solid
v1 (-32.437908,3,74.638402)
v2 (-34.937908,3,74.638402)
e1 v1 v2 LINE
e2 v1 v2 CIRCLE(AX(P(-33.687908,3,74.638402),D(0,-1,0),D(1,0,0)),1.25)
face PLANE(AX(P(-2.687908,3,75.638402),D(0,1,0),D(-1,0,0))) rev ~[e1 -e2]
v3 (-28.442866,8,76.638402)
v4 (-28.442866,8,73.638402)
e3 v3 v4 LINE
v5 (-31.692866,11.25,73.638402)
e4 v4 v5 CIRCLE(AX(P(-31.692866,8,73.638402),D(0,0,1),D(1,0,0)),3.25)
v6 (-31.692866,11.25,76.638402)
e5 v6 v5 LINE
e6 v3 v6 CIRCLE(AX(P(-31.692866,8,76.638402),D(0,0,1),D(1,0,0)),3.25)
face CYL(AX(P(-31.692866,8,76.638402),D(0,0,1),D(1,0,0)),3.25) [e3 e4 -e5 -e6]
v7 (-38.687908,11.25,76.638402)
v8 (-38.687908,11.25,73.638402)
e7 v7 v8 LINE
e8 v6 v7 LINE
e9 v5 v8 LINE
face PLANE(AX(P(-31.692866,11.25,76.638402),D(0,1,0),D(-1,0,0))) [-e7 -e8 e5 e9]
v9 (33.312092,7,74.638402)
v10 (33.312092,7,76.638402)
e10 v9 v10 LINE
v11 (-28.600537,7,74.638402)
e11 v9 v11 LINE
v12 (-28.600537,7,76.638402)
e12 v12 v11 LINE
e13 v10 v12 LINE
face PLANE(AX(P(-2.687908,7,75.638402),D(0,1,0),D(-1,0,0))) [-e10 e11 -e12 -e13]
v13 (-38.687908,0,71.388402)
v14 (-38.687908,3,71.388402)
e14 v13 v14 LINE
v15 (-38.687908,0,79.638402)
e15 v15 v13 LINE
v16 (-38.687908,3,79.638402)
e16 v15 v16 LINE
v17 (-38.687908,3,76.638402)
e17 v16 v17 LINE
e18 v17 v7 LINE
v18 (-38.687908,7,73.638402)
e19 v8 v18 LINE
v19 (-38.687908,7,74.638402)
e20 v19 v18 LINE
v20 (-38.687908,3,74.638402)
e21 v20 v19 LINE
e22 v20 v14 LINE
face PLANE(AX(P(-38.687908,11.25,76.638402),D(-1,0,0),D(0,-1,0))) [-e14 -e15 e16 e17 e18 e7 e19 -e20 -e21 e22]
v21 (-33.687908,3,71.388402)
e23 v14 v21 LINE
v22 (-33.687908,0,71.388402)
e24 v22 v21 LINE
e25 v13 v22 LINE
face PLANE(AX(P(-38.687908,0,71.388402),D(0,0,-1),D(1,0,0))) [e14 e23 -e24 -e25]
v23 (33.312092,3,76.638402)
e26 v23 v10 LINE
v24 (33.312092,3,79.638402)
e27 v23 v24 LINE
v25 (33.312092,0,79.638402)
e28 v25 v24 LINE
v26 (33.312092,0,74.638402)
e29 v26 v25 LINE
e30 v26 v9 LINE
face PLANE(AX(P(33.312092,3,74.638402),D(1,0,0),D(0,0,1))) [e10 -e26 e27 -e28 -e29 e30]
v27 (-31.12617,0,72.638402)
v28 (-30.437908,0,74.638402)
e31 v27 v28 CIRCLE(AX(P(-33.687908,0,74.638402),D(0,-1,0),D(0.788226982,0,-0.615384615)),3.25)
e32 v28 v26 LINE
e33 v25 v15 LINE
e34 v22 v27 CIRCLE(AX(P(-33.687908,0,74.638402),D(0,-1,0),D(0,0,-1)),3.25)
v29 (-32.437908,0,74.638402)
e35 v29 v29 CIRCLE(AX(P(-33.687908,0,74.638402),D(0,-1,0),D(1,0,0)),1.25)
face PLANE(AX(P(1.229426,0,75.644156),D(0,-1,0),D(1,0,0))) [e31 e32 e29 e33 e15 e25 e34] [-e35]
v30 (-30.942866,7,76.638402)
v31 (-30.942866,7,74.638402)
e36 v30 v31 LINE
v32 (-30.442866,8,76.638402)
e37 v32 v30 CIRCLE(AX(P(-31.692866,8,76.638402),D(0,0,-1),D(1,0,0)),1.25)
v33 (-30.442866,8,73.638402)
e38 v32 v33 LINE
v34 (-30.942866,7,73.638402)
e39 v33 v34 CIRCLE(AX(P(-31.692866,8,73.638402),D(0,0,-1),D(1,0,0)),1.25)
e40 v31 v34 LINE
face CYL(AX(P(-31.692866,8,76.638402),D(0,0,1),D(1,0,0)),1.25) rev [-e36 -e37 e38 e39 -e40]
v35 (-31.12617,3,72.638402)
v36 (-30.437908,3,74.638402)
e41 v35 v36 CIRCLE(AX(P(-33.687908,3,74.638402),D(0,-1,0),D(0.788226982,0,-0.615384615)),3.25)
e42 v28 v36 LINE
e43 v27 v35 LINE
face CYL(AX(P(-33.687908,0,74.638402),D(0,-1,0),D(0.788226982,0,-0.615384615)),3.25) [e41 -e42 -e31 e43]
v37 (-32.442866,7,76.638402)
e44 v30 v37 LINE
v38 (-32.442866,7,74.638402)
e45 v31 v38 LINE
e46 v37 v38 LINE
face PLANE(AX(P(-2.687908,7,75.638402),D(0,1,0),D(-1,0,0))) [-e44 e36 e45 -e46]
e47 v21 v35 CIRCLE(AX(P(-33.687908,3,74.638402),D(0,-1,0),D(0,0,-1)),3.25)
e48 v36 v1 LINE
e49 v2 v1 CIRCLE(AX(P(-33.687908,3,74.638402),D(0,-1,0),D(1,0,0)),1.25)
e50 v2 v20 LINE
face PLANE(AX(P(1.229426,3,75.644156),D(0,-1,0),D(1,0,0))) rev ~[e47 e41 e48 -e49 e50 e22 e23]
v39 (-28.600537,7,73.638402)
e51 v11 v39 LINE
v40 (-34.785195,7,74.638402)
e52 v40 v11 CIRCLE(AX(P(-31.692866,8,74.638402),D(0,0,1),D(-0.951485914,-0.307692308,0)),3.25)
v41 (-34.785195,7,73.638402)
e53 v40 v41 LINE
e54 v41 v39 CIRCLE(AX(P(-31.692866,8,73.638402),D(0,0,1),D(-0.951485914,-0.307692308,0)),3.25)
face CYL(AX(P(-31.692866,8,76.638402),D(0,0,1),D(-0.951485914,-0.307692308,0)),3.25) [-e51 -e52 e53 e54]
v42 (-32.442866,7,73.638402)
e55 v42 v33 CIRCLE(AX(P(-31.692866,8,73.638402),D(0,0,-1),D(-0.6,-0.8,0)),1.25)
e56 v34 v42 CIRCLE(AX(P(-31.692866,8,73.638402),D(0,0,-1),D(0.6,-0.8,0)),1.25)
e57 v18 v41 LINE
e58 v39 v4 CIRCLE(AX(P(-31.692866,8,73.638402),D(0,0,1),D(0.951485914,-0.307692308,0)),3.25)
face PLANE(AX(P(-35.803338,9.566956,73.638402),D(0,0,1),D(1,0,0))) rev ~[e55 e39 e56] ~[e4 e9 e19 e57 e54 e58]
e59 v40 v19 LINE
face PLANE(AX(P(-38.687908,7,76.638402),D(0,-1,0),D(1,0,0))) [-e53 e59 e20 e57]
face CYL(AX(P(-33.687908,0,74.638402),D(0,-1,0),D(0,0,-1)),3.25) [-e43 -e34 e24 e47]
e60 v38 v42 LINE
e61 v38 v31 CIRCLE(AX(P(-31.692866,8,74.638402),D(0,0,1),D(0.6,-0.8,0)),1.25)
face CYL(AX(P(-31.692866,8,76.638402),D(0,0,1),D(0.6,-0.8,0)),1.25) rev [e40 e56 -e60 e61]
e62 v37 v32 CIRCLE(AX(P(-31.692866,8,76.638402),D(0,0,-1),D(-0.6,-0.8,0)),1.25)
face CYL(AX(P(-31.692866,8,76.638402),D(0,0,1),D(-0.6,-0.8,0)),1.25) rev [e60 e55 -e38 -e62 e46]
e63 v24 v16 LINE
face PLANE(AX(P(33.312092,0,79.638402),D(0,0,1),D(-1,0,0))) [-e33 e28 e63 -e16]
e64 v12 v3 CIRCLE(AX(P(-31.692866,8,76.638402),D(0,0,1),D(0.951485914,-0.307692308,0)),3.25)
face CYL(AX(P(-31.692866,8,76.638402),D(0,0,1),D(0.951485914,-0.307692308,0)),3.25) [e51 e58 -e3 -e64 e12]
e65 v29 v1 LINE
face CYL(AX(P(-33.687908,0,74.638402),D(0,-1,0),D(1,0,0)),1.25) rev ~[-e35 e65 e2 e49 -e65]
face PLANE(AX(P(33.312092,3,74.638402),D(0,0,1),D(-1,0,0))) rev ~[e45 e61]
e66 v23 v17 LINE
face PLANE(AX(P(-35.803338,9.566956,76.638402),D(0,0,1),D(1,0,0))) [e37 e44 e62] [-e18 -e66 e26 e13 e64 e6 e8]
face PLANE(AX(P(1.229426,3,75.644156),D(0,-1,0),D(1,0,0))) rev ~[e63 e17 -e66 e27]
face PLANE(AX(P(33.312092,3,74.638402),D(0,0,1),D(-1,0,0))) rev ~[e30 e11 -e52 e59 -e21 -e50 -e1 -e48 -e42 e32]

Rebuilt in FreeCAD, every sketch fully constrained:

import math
import FreeCAD as App
import Part
import Sketcher


def add_polygon(sketch, points):
    """Adds a closed chain of lines whose ends are joined by coincident constraints."""
    first, n = sketch.GeometryCount, len(points)
    for a, b in zip(points, points[1:] + points[:1]):
        sketch.addGeometry(Part.LineSegment(App.Vector(*a, 0), App.Vector(*b, 0)), False)
    for i in range(n):
        sketch.addConstraint(Sketcher.Constraint("Coincident", first + i, 2, first + (i + 1) % n, 1))

doc = App.newDocument("Part")
body = doc.addObject("PartDesign::Body", "Body")

# Sketch on XZ plane
sketch1 = doc.addObject("Sketcher::SketchObject", "Sketch")
body.addObject(sketch1)
sketch1.AttachmentSupport = (doc.XZ_Plane, [""])
sketch1.MapMode = "FlatFace"
sketch1.addGeometry([
    Part.LineSegment(App.Vector(-38.7, 71.4, 0), App.Vector(-33.7, 71.4, 0)),  # 0
    Part.ArcOfCircle(Part.Circle(App.Vector(-33.7, 74.6, 0), App.Vector(0, 0, 1), 3.2), math.radians(-90), math.radians(-38)),  # 1
    Part.ArcOfCircle(Part.Circle(App.Vector(-33.7, 74.6, 0), App.Vector(0, 0, 1), 3.3), math.radians(-38), math.radians(0)),  # 2
    Part.LineSegment(App.Vector(-30.4, 74.6, 0), App.Vector(33.3, 74.6, 0)),  # 3
    Part.LineSegment(App.Vector(33.3, 74.6, 0), App.Vector(33.3, 79.6, 0)),  # 4
    Part.LineSegment(App.Vector(33.3, 79.6, 0), App.Vector(-38.7, 79.6, 0)),  # 5
    Part.LineSegment(App.Vector(-38.7, 79.6, 0), App.Vector(-38.7, 71.4, 0)),  # 6
    Part.Circle(App.Vector(-33.7, 74.6, 0), App.Vector(0, 0, 1), 1.2),  # 7
], False)
sketch1.addConstraint([
    Sketcher.Constraint("Tangent", 0, 2, 1, 1),
    Sketcher.Constraint("Tangent", 1, 2, 2, 1),
    Sketcher.Constraint("Coincident", 2, 2, 3, 1),
    Sketcher.Constraint("Coincident", 3, 2, 4, 1),
    Sketcher.Constraint("Coincident", 4, 2, 5, 1),
    Sketcher.Constraint("Coincident", 5, 2, 6, 1),
    Sketcher.Constraint("Coincident", 6, 2, 0, 1),
    Sketcher.Constraint("Horizontal", 0),
    Sketcher.Constraint("Horizontal", 3),
    Sketcher.Constraint("Vertical", 4),
    Sketcher.Constraint("Horizontal", 5),
    Sketcher.Constraint("Vertical", 6),
    Sketcher.Constraint("Coincident", 7, 3, 1, 3),
    Sketcher.Constraint("Equal", 1, 2),
    Sketcher.Constraint("Horizontal", 7, 3, 2, 2),
    Sketcher.Constraint("Equal", 0, 4),
    Sketcher.Constraint("Diameter", 7, 2.5),
    Sketcher.Constraint("DistanceX", 0, 1, 0, 2, 5.0),
    Sketcher.Constraint("DistanceX", 5, 2, 5, 1, 72.0),
    Sketcher.Constraint("Radius", 1, 3.25),
    Sketcher.Constraint("DistanceY", 1, 2, 1, 3, 2.0),
    Sketcher.Constraint("DistanceY", -1, 1, 1, 3, 74.638402),
    Sketcher.Constraint("DistanceX", 1, 2, -1, 1, 31.12617),
])
pad1 = doc.addObject("PartDesign::Pad", "Pad")
body.addObject(pad1)
pad1.Profile = sketch1
pad1.Length = 3
pad1.Reversed = True

# Sketch on XZ plane
sketch2 = doc.addObject("Sketcher::SketchObject", "Sketch001")
body.addObject(sketch2)
sketch2.AttachmentSupport = (doc.XZ_Plane, [""])
sketch2.MapMode = "FlatFace"
sketch2.AttachmentOffset = App.Placement(App.Vector(0, 0, -3), App.Rotation())
add_polygon(sketch2, [(33.3, 76.6), (33.3, 74.6), (-38.7, 74.6), (-38.7, 76.6)])  # lines 0-3
sketch2.addConstraint([
    Sketcher.Constraint("Vertical", 0),
    Sketcher.Constraint("Horizontal", 1),
    Sketcher.Constraint("Vertical", 2),
    Sketcher.Constraint("Horizontal", 3),
    Sketcher.Constraint("DistanceX", 1, 2, 1, 1, 72.0),
    Sketcher.Constraint("DistanceY", 0, 2, 0, 1, 2.0),
    Sketcher.Constraint("DistanceY", -1, 1, 0, 2, 74.638402),
    Sketcher.Constraint("DistanceX", -1, 1, 0, 2, 33.312092),
])
pad2 = doc.addObject("PartDesign::Pad", "Pad001")
body.addObject(pad2)
pad2.Profile = sketch2
pad2.Length = 4
pad2.Reversed = True

# Sketch on XY plane
sketch3 = doc.addObject("Sketcher::SketchObject", "Sketch002")
body.addObject(sketch3)
sketch3.AttachmentSupport = (doc.XY_Plane, [""])
sketch3.MapMode = "FlatFace"
sketch3.AttachmentOffset = App.Placement(App.Vector(0, 0, 76.638402), App.Rotation())
sketch3.addGeometry([
    Part.LineSegment(App.Vector(-38.7, 7, 0), App.Vector(-34.8, 7, 0)),  # 0
    Part.ArcOfCircle(Part.Circle(App.Vector(-31.7, 8, 0), App.Vector(0, 0, 1), 3.2), math.radians(-162), math.radians(-18)),  # 1
    Part.ArcOfCircle(Part.Circle(App.Vector(-31.7, 8, 0), App.Vector(0, 0, 1), 3.3), math.radians(-17.92), math.radians(0)),  # 2
    Part.ArcOfCircle(Part.Circle(App.Vector(-31.7, 8, 0), App.Vector(0, 0, 1), 3.2), math.radians(0), math.radians(90)),  # 3
    Part.LineSegment(App.Vector(-31.7, 11.2, 0), App.Vector(-38.7, 11.2, 0)),  # 4
    Part.LineSegment(App.Vector(-38.7, 11.2, 0), App.Vector(-38.7, 7, 0)),  # 5
    Part.ArcOfCircle(Part.Circle(App.Vector(-31.7, 8, 0), App.Vector(0, 0, 1), 1.2), math.radians(0), math.radians(233)),  # 6
    Part.ArcOfCircle(Part.Circle(App.Vector(-31.7, 8, 0), App.Vector(0, 0, 1), 1.2), math.radians(-53), math.radians(0)),  # 7
    Part.ArcOfCircle(Part.Circle(App.Vector(-31.7, 8, 0), App.Vector(0, 0, 1), 1.2), math.radians(-127), math.radians(-53)),  # 8
], False)
sketch3.addConstraint([
    Sketcher.Constraint("Coincident", 0, 2, 1, 1),
    Sketcher.Constraint("Tangent", 1, 2, 2, 1),
    Sketcher.Constraint("Tangent", 2, 2, 3, 1),
    Sketcher.Constraint("Tangent", 3, 2, 4, 1),
    Sketcher.Constraint("Coincident", 4, 2, 5, 1),
    Sketcher.Constraint("Coincident", 5, 2, 0, 1),
    Sketcher.Constraint("Tangent", 6, 1, 7, 2),
    Sketcher.Constraint("Tangent", 7, 1, 8, 2),
    Sketcher.Constraint("Tangent", 8, 1, 6, 2),
    Sketcher.Constraint("Horizontal", 0),
    Sketcher.Constraint("Horizontal", 4),
    Sketcher.Constraint("Vertical", 5),
    Sketcher.Constraint("Coincident", 3, 3, 1, 3),
    Sketcher.Constraint("Coincident", 6, 3, 1, 3),
    Sketcher.Constraint("Horizontal", 0, 2, 1, 2),
    Sketcher.Constraint("Horizontal", 8, 3, 2, 2),
    Sketcher.Constraint("Horizontal", 2, 2, 6, 1),
    Sketcher.Constraint("Horizontal", 5, 2, 7, 1),
    Sketcher.Constraint("Horizontal", 7, 1, 8, 1),
    Sketcher.Constraint("Radius", 1, 3.25),
    Sketcher.Constraint("Radius", 6, 1.25),
    Sketcher.Constraint("DistanceY", -1, 1, 1, 3, 8.0),
    Sketcher.Constraint("DistanceY", -1, 1, 0, 2, 7.0),
    Sketcher.Constraint("DistanceX", 4, 2, 4, 1, 6.995041),
    Sketcher.Constraint("DistanceX", 1, 3, -1, 1, 31.692866),
])
pad3 = doc.addObject("PartDesign::Pad", "Pad002")
body.addObject(pad3)
pad3.Profile = sketch3
pad3.Length = 3
pad3.Reversed = True

doc.recompute()
